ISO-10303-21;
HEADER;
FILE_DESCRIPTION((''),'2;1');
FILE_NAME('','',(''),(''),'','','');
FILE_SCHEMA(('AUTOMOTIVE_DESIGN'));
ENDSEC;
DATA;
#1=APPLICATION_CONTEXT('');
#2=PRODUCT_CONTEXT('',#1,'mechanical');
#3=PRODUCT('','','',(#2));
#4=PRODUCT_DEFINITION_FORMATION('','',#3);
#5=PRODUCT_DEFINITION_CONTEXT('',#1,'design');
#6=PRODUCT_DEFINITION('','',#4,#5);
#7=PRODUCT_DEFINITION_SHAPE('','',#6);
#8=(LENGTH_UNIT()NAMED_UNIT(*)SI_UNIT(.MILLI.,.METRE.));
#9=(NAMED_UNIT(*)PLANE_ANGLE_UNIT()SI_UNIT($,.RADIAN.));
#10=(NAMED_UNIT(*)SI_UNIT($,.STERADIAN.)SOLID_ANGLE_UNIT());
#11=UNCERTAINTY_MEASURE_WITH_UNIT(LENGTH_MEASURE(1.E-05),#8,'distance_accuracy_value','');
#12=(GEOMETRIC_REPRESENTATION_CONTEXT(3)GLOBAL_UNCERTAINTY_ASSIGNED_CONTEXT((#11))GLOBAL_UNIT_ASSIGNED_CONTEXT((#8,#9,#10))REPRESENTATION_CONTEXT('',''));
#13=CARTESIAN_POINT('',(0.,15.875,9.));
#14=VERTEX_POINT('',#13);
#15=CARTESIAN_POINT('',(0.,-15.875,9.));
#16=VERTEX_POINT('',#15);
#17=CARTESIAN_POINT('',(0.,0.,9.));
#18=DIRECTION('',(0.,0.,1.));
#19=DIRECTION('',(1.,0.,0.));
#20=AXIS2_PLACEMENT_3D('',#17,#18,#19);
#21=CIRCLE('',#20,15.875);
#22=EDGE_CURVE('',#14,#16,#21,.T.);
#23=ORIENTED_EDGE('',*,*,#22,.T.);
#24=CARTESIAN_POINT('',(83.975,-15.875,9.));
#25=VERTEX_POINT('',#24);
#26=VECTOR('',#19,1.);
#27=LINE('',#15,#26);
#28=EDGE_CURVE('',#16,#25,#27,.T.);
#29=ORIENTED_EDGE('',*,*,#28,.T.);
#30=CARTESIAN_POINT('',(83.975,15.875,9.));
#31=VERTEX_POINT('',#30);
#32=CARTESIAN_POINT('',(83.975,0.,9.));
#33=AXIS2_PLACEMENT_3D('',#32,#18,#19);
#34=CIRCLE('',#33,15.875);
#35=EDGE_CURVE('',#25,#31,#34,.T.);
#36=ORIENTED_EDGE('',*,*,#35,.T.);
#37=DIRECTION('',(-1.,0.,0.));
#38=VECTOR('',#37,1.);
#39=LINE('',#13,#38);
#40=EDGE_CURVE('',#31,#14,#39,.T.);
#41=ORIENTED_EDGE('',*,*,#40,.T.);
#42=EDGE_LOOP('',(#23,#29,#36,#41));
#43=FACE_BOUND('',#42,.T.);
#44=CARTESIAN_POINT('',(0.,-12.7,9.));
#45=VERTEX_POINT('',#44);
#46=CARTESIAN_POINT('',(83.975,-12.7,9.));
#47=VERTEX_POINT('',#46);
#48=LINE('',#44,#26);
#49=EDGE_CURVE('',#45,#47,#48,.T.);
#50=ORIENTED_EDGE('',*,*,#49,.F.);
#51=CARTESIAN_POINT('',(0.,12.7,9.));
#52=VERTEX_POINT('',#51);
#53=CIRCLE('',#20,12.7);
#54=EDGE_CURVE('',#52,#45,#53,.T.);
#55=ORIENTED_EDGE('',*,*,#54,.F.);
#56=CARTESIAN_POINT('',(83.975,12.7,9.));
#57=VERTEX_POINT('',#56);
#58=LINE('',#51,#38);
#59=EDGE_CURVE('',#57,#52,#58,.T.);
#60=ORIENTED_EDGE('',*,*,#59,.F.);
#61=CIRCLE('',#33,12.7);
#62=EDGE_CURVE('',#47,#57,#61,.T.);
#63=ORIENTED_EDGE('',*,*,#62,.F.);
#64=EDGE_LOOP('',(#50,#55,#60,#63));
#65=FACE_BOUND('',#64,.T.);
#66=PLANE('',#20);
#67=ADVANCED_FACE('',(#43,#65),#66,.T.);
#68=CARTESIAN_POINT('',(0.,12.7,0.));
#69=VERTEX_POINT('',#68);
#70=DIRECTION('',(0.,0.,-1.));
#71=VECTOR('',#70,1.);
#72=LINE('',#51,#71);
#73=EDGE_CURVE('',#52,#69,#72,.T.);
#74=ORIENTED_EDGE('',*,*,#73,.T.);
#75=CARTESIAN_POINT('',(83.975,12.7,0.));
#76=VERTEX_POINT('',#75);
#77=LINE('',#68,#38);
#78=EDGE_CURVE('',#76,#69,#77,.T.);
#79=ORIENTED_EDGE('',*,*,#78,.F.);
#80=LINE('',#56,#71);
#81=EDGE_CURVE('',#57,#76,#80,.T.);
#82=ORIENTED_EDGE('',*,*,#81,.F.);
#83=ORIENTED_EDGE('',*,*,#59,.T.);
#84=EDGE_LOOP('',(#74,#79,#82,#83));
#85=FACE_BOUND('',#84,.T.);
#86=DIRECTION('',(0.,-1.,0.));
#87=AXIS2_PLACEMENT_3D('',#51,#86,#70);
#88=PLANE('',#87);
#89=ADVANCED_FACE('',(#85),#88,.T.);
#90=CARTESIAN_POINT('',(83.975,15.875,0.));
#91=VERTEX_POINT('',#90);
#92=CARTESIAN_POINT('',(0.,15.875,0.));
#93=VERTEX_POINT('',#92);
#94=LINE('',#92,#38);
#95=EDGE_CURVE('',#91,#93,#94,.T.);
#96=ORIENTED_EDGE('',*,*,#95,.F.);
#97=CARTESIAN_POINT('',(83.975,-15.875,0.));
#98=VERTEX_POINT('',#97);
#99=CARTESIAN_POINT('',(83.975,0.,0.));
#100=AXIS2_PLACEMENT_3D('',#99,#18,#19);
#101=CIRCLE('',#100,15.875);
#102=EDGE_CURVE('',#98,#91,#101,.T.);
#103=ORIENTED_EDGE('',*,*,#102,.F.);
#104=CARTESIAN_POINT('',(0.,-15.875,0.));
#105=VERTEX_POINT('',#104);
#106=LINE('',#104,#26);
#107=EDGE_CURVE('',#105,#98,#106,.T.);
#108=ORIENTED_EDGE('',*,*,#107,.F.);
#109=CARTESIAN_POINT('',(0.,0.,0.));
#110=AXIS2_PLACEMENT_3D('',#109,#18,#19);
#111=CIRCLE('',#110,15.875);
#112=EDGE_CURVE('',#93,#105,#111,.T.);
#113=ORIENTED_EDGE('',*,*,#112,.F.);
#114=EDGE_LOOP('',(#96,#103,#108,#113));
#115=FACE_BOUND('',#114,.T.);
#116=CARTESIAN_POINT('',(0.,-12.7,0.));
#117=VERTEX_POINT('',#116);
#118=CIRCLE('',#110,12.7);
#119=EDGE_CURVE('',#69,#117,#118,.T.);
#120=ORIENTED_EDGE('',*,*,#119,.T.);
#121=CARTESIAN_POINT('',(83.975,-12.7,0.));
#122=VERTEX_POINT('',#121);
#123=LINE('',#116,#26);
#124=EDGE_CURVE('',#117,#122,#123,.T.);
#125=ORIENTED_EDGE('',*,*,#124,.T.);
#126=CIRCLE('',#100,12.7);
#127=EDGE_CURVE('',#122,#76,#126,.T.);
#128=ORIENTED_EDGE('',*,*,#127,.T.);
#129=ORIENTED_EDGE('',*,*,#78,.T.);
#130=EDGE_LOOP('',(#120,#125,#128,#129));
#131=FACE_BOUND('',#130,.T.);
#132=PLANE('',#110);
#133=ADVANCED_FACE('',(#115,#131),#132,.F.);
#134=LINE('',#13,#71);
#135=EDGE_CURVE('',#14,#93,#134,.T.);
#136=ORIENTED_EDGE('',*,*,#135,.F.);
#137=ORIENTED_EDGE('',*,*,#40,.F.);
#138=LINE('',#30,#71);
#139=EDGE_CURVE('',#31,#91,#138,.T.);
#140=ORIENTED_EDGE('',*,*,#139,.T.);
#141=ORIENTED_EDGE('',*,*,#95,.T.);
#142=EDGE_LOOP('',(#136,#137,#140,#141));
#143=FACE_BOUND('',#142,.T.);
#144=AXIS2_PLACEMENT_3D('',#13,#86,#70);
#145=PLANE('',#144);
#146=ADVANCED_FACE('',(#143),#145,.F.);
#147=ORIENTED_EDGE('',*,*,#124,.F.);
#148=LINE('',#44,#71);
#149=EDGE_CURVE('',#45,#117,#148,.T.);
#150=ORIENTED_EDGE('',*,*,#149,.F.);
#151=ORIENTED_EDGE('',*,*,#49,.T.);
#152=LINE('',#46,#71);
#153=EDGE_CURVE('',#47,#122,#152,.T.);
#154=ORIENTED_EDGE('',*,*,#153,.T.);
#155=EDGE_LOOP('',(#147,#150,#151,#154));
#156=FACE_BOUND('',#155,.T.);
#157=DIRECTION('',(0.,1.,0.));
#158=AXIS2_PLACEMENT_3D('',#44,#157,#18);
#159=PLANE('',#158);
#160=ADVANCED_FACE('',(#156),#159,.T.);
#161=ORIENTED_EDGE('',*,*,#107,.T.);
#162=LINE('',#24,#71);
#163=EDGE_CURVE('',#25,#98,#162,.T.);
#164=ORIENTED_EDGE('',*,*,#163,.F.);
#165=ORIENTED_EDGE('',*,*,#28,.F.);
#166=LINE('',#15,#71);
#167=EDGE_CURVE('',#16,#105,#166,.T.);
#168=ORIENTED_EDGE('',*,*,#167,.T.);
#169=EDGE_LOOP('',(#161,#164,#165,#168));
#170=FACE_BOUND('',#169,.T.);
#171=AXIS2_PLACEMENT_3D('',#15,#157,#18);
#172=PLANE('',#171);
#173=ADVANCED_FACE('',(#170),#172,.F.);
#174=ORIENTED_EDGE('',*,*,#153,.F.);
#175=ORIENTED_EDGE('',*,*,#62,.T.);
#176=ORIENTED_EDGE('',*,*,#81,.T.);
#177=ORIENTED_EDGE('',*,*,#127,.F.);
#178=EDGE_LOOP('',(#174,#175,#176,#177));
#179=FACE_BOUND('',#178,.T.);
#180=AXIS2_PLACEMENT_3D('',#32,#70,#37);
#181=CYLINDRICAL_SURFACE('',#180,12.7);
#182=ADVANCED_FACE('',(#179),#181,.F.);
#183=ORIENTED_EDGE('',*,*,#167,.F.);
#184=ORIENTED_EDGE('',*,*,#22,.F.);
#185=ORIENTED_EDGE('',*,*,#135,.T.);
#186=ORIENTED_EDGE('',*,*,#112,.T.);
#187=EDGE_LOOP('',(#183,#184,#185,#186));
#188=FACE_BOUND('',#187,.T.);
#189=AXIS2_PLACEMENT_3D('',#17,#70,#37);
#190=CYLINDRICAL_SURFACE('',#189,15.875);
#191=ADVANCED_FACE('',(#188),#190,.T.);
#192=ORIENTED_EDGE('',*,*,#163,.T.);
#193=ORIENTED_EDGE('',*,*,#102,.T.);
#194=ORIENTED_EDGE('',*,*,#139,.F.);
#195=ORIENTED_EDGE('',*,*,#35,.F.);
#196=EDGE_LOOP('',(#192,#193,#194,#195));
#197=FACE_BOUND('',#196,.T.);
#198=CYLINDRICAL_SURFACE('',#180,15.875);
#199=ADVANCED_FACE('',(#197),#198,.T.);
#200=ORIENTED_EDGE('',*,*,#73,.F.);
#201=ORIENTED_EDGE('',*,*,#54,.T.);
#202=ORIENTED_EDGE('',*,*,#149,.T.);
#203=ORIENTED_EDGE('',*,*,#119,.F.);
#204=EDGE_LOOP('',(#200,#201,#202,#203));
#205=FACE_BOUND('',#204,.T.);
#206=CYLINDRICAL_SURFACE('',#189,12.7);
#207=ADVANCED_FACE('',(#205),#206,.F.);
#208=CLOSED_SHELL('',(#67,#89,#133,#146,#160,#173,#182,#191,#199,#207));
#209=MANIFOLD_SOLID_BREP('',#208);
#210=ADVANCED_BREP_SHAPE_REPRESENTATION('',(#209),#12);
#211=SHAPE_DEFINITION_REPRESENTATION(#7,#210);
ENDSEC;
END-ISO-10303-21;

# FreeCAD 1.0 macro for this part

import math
import FreeCAD as App
import Part
import Sketcher
from FreeCAD import Vector
Q = App.Units.Quantity

doc = App.newDocument("Part")
body = doc.addObject("PartDesign::Body", "Body")

sketch1 = body.newObject("Sketcher::SketchObject", "Sketch")
sketch1.AttachmentSupport = (doc.getObject("XY_Plane"), [""])
sketch1.MapMode = "FlatFace"
sketch1.addGeometry(Part.LineSegment(Vector(84, 16, 0), Vector(0, 16, 0)), False)
sketch1.addGeometry(Part.ArcOfCircle(Part.Circle(Vector(0, 0, 0), Vector(0, 0, 1), 16), math.radians(90), math.radians(270)), False)
sketch1.addGeometry(Part.LineSegment(Vector(0, -16, 0), Vector(84, -16, 0)), False)
sketch1.addGeometry(Part.ArcOfCircle(Part.Circle(Vector(84, 0, 0), Vector(0, 0, 1), 16), math.radians(-90), math.radians(90)), False)
sketch1.addGeometry(Part.LineSegment(Vector(0, 13, 0), Vector(84, 13, 0)), False)
sketch1.addGeometry(Part.ArcOfCircle(Part.Circle(Vector(84, 0, 0), Vector(0, 0, 1), 13), math.radians(-90), math.radians(90)), False)
sketch1.addGeometry(Part.LineSegment(Vector(84, -13, 0), Vector(0, -13, 0)), False)
sketch1.addGeometry(Part.ArcOfCircle(Part.Circle(Vector(0, 0, 0), Vector(0, 0, 1), 13), math.radians(90), math.radians(270)), False)
sketch1.addConstraint(Sketcher.Constraint("Tangent", 0, 2, 1, 1))
sketch1.addConstraint(Sketcher.Constraint("Tangent", 1, 2, 2, 1))
sketch1.addConstraint(Sketcher.Constraint("Tangent", 2, 2, 3, 1))
sketch1.addConstraint(Sketcher.Constraint("Tangent", 3, 2, 0, 1))
sketch1.addConstraint(Sketcher.Constraint("Tangent", 4, 2, 5, 2))
sketch1.addConstraint(Sketcher.Constraint("Tangent", 5, 1, 6, 1))
sketch1.addConstraint(Sketcher.Constraint("Tangent", 6, 2, 7, 2))
sketch1.addConstraint(Sketcher.Constraint("Tangent", 7, 1, 4, 1))
sketch1.addConstraint(Sketcher.Constraint("Horizontal", 0))
sketch1.addConstraint(Sketcher.Constraint("Horizontal", 2))
sketch1.addConstraint(Sketcher.Constraint("Horizontal", 4))
sketch1.addConstraint(Sketcher.Constraint("Horizontal", 6))
sketch1.addConstraint(Sketcher.Constraint("Coincident", 1, 3, -1, 1))
sketch1.addConstraint(Sketcher.Constraint("Coincident", 7, 3, -1, 1))
sketch1.addConstraint(Sketcher.Constraint("Vertical", 5, 3, 2, 2))
sketch1.addConstraint(Sketcher.Constraint("Radius", 5, Q("0.5 in")))
sketch1.addConstraint(Sketcher.Constraint("Radius", 1, Q("0.625 in")))
sketch1.addConstraint(Sketcher.Constraint("DistanceX", 0, 2, 0, 1, Q("83.975 mm")))
pad1 = body.newObject("PartDesign::Pad", "Pad")
pad1.Profile = sketch1
pad1.Length = 9

doc.recompute()
